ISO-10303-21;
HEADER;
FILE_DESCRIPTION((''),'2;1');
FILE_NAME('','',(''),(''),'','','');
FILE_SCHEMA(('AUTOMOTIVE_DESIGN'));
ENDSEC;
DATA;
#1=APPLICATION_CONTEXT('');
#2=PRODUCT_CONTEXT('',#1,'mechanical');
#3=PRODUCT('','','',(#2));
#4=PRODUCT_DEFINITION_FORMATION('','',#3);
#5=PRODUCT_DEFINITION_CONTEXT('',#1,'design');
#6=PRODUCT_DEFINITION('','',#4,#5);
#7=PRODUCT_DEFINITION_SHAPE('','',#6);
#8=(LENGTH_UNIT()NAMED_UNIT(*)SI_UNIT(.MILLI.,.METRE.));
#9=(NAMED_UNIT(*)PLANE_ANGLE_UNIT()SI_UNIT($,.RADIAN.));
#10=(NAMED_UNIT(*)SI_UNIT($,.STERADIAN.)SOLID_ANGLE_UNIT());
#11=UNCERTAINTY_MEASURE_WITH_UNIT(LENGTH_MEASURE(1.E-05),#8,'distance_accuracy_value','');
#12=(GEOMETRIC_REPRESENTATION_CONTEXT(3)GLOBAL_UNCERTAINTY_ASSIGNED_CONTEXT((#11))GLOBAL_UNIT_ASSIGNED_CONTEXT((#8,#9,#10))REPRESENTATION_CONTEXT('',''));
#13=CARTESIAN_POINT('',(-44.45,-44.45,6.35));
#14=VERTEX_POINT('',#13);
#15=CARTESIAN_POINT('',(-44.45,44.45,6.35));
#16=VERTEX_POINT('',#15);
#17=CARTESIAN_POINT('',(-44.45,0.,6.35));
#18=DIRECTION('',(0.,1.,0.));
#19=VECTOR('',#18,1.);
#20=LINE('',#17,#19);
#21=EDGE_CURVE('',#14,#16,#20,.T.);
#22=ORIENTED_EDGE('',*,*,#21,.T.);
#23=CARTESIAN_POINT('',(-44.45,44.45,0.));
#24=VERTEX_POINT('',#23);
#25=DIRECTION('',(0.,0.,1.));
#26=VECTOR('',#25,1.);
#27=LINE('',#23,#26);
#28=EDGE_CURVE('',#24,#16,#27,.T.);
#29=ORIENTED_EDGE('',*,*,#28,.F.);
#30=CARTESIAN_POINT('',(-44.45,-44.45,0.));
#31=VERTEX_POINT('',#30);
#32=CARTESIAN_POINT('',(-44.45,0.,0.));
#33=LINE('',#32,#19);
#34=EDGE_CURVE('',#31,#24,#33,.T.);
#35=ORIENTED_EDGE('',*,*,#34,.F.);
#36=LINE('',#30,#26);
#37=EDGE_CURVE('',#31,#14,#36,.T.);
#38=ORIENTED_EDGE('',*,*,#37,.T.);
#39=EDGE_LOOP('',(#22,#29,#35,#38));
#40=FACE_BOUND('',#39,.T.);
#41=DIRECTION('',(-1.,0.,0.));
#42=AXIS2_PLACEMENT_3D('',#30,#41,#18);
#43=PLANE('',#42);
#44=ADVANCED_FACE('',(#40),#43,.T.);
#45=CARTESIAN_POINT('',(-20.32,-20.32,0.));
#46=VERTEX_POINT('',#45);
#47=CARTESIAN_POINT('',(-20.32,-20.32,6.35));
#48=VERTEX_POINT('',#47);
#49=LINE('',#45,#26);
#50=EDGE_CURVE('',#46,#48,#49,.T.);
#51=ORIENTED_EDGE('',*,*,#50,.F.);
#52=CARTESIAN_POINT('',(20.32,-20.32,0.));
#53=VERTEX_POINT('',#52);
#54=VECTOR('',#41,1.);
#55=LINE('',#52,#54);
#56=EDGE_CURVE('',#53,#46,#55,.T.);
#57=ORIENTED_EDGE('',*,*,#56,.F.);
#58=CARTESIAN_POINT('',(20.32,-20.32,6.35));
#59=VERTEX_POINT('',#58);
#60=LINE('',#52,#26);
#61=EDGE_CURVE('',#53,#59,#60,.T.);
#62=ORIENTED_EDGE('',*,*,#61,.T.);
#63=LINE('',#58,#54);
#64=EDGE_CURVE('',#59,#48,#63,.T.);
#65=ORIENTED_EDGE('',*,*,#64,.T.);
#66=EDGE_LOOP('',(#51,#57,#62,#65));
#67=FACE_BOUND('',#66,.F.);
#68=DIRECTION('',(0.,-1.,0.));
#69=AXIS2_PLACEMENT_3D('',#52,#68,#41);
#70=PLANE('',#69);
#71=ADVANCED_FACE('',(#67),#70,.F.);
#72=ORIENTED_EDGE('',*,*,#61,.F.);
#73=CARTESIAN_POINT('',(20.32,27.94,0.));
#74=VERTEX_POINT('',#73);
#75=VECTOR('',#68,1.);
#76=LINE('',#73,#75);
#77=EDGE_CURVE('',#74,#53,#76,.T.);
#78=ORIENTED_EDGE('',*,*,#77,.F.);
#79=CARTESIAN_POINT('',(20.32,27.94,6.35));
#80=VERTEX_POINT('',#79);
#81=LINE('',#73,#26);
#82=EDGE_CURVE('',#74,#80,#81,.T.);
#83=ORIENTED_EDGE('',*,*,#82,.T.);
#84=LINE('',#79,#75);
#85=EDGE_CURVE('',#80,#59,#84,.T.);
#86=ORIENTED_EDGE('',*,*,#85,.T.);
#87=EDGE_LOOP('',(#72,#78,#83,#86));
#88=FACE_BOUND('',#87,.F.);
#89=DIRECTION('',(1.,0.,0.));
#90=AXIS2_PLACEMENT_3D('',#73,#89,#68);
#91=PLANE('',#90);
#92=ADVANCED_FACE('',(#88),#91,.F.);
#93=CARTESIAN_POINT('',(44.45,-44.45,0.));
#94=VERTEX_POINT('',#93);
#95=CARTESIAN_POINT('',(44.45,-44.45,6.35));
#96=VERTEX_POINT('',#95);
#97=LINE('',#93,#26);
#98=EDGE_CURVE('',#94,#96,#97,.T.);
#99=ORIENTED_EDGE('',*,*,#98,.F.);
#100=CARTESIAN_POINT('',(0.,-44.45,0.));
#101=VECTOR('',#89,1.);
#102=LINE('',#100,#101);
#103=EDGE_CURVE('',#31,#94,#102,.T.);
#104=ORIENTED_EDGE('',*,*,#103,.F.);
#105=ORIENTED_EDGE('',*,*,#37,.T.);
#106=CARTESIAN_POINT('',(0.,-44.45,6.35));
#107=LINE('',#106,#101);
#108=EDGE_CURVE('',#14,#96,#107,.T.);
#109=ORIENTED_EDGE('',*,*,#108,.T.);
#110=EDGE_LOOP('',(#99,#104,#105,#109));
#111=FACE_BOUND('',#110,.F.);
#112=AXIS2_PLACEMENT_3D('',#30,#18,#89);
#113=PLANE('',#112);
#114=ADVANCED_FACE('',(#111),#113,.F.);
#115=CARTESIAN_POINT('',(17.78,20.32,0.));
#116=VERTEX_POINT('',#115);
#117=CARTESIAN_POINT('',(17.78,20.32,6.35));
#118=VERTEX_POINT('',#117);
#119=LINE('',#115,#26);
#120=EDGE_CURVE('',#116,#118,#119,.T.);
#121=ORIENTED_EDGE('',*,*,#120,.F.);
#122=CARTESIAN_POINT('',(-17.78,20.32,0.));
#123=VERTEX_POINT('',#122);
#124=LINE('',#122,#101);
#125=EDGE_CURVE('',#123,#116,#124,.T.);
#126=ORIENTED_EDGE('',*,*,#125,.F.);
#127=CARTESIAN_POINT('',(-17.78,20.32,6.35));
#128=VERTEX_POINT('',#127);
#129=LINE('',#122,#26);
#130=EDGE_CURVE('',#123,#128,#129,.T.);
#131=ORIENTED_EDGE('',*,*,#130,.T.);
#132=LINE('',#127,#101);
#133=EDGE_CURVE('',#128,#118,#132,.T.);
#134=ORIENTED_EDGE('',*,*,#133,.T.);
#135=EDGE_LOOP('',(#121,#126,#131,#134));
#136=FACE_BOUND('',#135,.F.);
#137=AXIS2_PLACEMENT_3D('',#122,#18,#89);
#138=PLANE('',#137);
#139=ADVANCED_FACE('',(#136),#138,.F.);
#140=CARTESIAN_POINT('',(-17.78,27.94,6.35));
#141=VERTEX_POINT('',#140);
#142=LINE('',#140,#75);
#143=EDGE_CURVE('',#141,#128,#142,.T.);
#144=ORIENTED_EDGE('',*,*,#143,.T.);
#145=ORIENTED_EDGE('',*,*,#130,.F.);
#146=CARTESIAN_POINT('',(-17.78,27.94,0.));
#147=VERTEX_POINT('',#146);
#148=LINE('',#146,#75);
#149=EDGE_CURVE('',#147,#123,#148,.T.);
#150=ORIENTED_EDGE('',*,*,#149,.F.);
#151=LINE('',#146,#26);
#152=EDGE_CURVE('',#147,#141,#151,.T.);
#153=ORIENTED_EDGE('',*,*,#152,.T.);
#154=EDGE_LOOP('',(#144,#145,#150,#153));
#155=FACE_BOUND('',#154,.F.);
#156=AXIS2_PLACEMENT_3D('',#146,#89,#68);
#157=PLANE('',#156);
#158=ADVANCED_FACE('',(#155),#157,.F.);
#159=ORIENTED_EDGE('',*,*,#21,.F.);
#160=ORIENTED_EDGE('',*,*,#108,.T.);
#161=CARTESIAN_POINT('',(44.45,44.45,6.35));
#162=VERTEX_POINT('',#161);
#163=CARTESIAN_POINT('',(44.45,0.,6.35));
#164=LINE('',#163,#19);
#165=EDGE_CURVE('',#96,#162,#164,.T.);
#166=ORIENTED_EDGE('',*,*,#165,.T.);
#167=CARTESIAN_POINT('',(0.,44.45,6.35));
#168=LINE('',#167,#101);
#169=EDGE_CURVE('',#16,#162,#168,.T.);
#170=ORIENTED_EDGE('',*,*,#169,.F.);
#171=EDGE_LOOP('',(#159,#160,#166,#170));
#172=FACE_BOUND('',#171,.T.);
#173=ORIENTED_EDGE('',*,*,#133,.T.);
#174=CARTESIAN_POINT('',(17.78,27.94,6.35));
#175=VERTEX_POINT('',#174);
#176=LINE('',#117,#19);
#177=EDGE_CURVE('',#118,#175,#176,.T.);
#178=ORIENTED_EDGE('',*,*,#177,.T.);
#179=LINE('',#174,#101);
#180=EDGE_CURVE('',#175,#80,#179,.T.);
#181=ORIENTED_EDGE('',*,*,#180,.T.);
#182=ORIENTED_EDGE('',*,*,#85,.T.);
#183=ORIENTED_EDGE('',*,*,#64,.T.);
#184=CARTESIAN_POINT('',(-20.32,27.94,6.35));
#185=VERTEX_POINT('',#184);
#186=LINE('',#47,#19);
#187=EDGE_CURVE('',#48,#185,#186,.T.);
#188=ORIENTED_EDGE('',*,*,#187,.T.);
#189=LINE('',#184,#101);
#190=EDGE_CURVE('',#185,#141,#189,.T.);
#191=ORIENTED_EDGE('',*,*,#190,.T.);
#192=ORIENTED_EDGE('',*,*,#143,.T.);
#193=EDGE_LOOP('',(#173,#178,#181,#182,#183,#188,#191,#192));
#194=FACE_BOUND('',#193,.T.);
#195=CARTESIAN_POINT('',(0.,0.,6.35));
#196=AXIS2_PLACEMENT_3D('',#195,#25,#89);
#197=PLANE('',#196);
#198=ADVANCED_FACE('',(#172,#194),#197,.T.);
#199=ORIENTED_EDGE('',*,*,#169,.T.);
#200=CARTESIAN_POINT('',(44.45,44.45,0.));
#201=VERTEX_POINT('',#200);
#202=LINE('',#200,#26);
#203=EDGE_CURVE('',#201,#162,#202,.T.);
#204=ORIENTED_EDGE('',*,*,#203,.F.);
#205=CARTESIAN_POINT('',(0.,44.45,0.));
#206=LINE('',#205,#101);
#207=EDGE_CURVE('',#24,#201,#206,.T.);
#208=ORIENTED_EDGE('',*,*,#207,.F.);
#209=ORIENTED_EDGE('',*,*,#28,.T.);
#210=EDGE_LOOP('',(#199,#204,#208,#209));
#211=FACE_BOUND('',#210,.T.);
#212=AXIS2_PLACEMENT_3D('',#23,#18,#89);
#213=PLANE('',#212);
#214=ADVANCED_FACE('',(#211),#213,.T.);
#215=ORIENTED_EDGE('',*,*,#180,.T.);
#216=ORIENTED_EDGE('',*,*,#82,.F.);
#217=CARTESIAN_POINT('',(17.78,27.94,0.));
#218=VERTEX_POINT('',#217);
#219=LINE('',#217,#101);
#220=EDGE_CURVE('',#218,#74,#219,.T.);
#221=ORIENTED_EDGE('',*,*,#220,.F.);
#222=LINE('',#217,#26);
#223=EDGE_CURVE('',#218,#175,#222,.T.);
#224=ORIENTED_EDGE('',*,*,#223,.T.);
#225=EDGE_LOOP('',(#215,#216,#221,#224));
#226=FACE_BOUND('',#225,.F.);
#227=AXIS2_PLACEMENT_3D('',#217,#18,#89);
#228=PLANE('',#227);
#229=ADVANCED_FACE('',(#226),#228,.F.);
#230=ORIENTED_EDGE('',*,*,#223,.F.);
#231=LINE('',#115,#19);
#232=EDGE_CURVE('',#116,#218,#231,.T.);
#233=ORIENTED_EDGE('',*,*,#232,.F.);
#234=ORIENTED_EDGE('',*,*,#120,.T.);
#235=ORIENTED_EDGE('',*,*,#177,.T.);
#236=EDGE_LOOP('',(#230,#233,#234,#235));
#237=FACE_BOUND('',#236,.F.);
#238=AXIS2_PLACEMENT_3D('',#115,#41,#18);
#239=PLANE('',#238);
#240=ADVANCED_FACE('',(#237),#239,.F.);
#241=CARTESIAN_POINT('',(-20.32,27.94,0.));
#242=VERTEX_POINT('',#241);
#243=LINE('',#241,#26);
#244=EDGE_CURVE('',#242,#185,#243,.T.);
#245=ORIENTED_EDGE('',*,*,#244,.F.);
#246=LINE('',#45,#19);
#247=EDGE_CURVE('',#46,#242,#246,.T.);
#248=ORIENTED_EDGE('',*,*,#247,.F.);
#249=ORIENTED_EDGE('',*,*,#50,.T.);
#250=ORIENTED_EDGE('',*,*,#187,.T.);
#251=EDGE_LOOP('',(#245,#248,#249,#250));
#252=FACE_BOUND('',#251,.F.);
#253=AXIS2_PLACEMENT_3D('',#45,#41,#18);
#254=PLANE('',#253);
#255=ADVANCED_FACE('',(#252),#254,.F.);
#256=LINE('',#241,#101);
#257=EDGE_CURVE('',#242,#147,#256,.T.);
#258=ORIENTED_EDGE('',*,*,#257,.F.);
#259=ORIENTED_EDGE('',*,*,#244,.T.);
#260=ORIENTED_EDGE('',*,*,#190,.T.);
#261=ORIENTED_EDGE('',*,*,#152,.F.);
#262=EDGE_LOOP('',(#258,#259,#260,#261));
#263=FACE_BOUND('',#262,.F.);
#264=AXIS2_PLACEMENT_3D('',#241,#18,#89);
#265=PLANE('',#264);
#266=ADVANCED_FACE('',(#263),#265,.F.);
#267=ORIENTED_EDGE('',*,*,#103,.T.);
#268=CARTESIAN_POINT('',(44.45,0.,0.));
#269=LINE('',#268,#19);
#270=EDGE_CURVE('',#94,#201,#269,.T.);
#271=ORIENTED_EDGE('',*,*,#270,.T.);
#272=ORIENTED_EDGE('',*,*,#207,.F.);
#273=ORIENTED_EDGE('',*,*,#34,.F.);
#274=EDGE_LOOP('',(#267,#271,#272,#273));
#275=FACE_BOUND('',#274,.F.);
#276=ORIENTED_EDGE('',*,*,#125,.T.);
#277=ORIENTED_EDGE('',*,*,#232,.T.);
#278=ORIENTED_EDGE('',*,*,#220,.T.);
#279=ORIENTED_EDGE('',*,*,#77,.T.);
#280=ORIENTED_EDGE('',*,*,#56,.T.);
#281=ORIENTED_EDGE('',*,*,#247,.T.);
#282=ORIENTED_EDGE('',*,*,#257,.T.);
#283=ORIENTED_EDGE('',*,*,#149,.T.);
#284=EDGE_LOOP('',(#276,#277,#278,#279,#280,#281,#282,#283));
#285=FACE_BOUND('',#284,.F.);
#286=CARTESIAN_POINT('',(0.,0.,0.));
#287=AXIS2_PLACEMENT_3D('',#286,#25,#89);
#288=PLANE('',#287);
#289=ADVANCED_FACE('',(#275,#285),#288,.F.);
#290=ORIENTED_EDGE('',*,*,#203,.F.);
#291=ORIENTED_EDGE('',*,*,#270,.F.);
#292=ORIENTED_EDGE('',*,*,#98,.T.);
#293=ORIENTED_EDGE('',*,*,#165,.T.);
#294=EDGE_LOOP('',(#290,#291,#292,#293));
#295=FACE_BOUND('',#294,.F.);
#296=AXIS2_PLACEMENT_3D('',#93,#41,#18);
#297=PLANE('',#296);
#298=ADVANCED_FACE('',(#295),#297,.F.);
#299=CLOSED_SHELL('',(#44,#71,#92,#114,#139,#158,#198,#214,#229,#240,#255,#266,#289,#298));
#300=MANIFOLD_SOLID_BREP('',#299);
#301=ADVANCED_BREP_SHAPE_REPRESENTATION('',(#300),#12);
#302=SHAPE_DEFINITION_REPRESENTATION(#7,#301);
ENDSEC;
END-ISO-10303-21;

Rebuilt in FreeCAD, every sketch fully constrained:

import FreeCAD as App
import Part
import Sketcher
from FreeCAD import Vector
Q = App.Units.Quantity

doc = App.newDocument("Part")
body = doc.addObject("PartDesign::Body", "Body")

# Sketch on XY plane
sketch1 = body.newObject("Sketcher::SketchObject", "Sketch")
sketch1.AttachmentSupport = (doc.getObject("XY_Plane"), [""])
sketch1.MapMode = "FlatFace"
sketch1.addGeometry([
    Part.LineSegment(Vector(-44.5, 44.5, 0), Vector(-44.5, -44.5, 0)),  # 0
    Part.LineSegment(Vector(-44.5, -44.5, 0), Vector(44.5, -44.5, 0)),  # 1
    Part.LineSegment(Vector(44.5, -44.5, 0), Vector(44.5, 44.5, 0)),  # 2
    Part.LineSegment(Vector(44.5, 44.5, 0), Vector(-44.5, 44.5, 0)),  # 3
    Part.LineSegment(Vector(-20.3, 27.9, 0), Vector(-17.8, 27.9, 0)),  # 4
    Part.LineSegment(Vector(-17.8, 27.9, 0), Vector(-17.8, 20.3, 0)),  # 5
    Part.LineSegment(Vector(-17.8, 20.3, 0), Vector(17.8, 20.3, 0)),  # 6
    Part.LineSegment(Vector(17.8, 20.3, 0), Vector(17.8, 27.9, 0)),  # 7
    Part.LineSegment(Vector(17.8, 27.9, 0), Vector(20.3, 27.9, 0)),  # 8
    Part.LineSegment(Vector(20.3, 27.9, 0), Vector(20.3, -20.3, 0)),  # 9
    Part.LineSegment(Vector(20.3, -20.3, 0), Vector(-20.3, -20.3, 0)),  # 10
    Part.LineSegment(Vector(-20.3, -20.3, 0), Vector(-20.3, 27.9, 0)),  # 11
], False)
sketch1.addConstraint([
    Sketcher.Constraint("Coincident", 0, 2, 1, 1),
    Sketcher.Constraint("Coincident", 1, 2, 2, 1),
    Sketcher.Constraint("Coincident", 2, 2, 3, 1),
    Sketcher.Constraint("Coincident", 3, 2, 0, 1),
    Sketcher.Constraint("Coincident", 4, 2, 5, 1),
    Sketcher.Constraint("Coincident", 5, 2, 6, 1),
    Sketcher.Constraint("Coincident", 6, 2, 7, 1),
    Sketcher.Constraint("Coincident", 7, 2, 8, 1),
    Sketcher.Constraint("Coincident", 8, 2, 9, 1),
    Sketcher.Constraint("Coincident", 9, 2, 10, 1),
    Sketcher.Constraint("Coincident", 10, 2, 11, 1),
    Sketcher.Constraint("Coincident", 11, 2, 4, 1),
    Sketcher.Constraint("Vertical", 0),
    Sketcher.Constraint("Horizontal", 1),
    Sketcher.Constraint("Vertical", 2),
    Sketcher.Constraint("Horizontal", 3),
    Sketcher.Constraint("Horizontal", 4),
    Sketcher.Constraint("Vertical", 5),
    Sketcher.Constraint("Horizontal", 6),
    Sketcher.Constraint("Vertical", 7),
    Sketcher.Constraint("Horizontal", 8),
    Sketcher.Constraint("Vertical", 9),
    Sketcher.Constraint("Horizontal", 10),
    Sketcher.Constraint("Vertical", 11),
    Sketcher.Constraint("Symmetric", 0, 2, 2, 2, -1, 1),
    Sketcher.Constraint("Symmetric", 4, 2, 7, 2, -2),
    Sketcher.Constraint("Equal", 4, 8),
    Sketcher.Constraint("Equal", 3, 0),
    Sketcher.Constraint("DistanceX", 1, 1, 1, 2, Q("3.5 in")),
    Sketcher.Constraint("DistanceX", 4, 1, 4, 2, Q("0.1 in")),
    Sketcher.Constraint("DistanceX", 6, 1, 6, 2, Q("1.4 in")),
    Sketcher.Constraint("DistanceY", 5, 2, 5, 1, Q("0.3 in")),
    Sketcher.Constraint("DistanceY", 9, 2, 9, 1, Q("1.9 in")),
    Sketcher.Constraint("DistanceY", -1, 1, 4, 2, Q("1.1 in")),
])
pad1 = body.newObject("PartDesign::Pad", "Pad")
pad1.Profile = sketch1
pad1.Length = Q("0.25 in")

doc.recompute()
